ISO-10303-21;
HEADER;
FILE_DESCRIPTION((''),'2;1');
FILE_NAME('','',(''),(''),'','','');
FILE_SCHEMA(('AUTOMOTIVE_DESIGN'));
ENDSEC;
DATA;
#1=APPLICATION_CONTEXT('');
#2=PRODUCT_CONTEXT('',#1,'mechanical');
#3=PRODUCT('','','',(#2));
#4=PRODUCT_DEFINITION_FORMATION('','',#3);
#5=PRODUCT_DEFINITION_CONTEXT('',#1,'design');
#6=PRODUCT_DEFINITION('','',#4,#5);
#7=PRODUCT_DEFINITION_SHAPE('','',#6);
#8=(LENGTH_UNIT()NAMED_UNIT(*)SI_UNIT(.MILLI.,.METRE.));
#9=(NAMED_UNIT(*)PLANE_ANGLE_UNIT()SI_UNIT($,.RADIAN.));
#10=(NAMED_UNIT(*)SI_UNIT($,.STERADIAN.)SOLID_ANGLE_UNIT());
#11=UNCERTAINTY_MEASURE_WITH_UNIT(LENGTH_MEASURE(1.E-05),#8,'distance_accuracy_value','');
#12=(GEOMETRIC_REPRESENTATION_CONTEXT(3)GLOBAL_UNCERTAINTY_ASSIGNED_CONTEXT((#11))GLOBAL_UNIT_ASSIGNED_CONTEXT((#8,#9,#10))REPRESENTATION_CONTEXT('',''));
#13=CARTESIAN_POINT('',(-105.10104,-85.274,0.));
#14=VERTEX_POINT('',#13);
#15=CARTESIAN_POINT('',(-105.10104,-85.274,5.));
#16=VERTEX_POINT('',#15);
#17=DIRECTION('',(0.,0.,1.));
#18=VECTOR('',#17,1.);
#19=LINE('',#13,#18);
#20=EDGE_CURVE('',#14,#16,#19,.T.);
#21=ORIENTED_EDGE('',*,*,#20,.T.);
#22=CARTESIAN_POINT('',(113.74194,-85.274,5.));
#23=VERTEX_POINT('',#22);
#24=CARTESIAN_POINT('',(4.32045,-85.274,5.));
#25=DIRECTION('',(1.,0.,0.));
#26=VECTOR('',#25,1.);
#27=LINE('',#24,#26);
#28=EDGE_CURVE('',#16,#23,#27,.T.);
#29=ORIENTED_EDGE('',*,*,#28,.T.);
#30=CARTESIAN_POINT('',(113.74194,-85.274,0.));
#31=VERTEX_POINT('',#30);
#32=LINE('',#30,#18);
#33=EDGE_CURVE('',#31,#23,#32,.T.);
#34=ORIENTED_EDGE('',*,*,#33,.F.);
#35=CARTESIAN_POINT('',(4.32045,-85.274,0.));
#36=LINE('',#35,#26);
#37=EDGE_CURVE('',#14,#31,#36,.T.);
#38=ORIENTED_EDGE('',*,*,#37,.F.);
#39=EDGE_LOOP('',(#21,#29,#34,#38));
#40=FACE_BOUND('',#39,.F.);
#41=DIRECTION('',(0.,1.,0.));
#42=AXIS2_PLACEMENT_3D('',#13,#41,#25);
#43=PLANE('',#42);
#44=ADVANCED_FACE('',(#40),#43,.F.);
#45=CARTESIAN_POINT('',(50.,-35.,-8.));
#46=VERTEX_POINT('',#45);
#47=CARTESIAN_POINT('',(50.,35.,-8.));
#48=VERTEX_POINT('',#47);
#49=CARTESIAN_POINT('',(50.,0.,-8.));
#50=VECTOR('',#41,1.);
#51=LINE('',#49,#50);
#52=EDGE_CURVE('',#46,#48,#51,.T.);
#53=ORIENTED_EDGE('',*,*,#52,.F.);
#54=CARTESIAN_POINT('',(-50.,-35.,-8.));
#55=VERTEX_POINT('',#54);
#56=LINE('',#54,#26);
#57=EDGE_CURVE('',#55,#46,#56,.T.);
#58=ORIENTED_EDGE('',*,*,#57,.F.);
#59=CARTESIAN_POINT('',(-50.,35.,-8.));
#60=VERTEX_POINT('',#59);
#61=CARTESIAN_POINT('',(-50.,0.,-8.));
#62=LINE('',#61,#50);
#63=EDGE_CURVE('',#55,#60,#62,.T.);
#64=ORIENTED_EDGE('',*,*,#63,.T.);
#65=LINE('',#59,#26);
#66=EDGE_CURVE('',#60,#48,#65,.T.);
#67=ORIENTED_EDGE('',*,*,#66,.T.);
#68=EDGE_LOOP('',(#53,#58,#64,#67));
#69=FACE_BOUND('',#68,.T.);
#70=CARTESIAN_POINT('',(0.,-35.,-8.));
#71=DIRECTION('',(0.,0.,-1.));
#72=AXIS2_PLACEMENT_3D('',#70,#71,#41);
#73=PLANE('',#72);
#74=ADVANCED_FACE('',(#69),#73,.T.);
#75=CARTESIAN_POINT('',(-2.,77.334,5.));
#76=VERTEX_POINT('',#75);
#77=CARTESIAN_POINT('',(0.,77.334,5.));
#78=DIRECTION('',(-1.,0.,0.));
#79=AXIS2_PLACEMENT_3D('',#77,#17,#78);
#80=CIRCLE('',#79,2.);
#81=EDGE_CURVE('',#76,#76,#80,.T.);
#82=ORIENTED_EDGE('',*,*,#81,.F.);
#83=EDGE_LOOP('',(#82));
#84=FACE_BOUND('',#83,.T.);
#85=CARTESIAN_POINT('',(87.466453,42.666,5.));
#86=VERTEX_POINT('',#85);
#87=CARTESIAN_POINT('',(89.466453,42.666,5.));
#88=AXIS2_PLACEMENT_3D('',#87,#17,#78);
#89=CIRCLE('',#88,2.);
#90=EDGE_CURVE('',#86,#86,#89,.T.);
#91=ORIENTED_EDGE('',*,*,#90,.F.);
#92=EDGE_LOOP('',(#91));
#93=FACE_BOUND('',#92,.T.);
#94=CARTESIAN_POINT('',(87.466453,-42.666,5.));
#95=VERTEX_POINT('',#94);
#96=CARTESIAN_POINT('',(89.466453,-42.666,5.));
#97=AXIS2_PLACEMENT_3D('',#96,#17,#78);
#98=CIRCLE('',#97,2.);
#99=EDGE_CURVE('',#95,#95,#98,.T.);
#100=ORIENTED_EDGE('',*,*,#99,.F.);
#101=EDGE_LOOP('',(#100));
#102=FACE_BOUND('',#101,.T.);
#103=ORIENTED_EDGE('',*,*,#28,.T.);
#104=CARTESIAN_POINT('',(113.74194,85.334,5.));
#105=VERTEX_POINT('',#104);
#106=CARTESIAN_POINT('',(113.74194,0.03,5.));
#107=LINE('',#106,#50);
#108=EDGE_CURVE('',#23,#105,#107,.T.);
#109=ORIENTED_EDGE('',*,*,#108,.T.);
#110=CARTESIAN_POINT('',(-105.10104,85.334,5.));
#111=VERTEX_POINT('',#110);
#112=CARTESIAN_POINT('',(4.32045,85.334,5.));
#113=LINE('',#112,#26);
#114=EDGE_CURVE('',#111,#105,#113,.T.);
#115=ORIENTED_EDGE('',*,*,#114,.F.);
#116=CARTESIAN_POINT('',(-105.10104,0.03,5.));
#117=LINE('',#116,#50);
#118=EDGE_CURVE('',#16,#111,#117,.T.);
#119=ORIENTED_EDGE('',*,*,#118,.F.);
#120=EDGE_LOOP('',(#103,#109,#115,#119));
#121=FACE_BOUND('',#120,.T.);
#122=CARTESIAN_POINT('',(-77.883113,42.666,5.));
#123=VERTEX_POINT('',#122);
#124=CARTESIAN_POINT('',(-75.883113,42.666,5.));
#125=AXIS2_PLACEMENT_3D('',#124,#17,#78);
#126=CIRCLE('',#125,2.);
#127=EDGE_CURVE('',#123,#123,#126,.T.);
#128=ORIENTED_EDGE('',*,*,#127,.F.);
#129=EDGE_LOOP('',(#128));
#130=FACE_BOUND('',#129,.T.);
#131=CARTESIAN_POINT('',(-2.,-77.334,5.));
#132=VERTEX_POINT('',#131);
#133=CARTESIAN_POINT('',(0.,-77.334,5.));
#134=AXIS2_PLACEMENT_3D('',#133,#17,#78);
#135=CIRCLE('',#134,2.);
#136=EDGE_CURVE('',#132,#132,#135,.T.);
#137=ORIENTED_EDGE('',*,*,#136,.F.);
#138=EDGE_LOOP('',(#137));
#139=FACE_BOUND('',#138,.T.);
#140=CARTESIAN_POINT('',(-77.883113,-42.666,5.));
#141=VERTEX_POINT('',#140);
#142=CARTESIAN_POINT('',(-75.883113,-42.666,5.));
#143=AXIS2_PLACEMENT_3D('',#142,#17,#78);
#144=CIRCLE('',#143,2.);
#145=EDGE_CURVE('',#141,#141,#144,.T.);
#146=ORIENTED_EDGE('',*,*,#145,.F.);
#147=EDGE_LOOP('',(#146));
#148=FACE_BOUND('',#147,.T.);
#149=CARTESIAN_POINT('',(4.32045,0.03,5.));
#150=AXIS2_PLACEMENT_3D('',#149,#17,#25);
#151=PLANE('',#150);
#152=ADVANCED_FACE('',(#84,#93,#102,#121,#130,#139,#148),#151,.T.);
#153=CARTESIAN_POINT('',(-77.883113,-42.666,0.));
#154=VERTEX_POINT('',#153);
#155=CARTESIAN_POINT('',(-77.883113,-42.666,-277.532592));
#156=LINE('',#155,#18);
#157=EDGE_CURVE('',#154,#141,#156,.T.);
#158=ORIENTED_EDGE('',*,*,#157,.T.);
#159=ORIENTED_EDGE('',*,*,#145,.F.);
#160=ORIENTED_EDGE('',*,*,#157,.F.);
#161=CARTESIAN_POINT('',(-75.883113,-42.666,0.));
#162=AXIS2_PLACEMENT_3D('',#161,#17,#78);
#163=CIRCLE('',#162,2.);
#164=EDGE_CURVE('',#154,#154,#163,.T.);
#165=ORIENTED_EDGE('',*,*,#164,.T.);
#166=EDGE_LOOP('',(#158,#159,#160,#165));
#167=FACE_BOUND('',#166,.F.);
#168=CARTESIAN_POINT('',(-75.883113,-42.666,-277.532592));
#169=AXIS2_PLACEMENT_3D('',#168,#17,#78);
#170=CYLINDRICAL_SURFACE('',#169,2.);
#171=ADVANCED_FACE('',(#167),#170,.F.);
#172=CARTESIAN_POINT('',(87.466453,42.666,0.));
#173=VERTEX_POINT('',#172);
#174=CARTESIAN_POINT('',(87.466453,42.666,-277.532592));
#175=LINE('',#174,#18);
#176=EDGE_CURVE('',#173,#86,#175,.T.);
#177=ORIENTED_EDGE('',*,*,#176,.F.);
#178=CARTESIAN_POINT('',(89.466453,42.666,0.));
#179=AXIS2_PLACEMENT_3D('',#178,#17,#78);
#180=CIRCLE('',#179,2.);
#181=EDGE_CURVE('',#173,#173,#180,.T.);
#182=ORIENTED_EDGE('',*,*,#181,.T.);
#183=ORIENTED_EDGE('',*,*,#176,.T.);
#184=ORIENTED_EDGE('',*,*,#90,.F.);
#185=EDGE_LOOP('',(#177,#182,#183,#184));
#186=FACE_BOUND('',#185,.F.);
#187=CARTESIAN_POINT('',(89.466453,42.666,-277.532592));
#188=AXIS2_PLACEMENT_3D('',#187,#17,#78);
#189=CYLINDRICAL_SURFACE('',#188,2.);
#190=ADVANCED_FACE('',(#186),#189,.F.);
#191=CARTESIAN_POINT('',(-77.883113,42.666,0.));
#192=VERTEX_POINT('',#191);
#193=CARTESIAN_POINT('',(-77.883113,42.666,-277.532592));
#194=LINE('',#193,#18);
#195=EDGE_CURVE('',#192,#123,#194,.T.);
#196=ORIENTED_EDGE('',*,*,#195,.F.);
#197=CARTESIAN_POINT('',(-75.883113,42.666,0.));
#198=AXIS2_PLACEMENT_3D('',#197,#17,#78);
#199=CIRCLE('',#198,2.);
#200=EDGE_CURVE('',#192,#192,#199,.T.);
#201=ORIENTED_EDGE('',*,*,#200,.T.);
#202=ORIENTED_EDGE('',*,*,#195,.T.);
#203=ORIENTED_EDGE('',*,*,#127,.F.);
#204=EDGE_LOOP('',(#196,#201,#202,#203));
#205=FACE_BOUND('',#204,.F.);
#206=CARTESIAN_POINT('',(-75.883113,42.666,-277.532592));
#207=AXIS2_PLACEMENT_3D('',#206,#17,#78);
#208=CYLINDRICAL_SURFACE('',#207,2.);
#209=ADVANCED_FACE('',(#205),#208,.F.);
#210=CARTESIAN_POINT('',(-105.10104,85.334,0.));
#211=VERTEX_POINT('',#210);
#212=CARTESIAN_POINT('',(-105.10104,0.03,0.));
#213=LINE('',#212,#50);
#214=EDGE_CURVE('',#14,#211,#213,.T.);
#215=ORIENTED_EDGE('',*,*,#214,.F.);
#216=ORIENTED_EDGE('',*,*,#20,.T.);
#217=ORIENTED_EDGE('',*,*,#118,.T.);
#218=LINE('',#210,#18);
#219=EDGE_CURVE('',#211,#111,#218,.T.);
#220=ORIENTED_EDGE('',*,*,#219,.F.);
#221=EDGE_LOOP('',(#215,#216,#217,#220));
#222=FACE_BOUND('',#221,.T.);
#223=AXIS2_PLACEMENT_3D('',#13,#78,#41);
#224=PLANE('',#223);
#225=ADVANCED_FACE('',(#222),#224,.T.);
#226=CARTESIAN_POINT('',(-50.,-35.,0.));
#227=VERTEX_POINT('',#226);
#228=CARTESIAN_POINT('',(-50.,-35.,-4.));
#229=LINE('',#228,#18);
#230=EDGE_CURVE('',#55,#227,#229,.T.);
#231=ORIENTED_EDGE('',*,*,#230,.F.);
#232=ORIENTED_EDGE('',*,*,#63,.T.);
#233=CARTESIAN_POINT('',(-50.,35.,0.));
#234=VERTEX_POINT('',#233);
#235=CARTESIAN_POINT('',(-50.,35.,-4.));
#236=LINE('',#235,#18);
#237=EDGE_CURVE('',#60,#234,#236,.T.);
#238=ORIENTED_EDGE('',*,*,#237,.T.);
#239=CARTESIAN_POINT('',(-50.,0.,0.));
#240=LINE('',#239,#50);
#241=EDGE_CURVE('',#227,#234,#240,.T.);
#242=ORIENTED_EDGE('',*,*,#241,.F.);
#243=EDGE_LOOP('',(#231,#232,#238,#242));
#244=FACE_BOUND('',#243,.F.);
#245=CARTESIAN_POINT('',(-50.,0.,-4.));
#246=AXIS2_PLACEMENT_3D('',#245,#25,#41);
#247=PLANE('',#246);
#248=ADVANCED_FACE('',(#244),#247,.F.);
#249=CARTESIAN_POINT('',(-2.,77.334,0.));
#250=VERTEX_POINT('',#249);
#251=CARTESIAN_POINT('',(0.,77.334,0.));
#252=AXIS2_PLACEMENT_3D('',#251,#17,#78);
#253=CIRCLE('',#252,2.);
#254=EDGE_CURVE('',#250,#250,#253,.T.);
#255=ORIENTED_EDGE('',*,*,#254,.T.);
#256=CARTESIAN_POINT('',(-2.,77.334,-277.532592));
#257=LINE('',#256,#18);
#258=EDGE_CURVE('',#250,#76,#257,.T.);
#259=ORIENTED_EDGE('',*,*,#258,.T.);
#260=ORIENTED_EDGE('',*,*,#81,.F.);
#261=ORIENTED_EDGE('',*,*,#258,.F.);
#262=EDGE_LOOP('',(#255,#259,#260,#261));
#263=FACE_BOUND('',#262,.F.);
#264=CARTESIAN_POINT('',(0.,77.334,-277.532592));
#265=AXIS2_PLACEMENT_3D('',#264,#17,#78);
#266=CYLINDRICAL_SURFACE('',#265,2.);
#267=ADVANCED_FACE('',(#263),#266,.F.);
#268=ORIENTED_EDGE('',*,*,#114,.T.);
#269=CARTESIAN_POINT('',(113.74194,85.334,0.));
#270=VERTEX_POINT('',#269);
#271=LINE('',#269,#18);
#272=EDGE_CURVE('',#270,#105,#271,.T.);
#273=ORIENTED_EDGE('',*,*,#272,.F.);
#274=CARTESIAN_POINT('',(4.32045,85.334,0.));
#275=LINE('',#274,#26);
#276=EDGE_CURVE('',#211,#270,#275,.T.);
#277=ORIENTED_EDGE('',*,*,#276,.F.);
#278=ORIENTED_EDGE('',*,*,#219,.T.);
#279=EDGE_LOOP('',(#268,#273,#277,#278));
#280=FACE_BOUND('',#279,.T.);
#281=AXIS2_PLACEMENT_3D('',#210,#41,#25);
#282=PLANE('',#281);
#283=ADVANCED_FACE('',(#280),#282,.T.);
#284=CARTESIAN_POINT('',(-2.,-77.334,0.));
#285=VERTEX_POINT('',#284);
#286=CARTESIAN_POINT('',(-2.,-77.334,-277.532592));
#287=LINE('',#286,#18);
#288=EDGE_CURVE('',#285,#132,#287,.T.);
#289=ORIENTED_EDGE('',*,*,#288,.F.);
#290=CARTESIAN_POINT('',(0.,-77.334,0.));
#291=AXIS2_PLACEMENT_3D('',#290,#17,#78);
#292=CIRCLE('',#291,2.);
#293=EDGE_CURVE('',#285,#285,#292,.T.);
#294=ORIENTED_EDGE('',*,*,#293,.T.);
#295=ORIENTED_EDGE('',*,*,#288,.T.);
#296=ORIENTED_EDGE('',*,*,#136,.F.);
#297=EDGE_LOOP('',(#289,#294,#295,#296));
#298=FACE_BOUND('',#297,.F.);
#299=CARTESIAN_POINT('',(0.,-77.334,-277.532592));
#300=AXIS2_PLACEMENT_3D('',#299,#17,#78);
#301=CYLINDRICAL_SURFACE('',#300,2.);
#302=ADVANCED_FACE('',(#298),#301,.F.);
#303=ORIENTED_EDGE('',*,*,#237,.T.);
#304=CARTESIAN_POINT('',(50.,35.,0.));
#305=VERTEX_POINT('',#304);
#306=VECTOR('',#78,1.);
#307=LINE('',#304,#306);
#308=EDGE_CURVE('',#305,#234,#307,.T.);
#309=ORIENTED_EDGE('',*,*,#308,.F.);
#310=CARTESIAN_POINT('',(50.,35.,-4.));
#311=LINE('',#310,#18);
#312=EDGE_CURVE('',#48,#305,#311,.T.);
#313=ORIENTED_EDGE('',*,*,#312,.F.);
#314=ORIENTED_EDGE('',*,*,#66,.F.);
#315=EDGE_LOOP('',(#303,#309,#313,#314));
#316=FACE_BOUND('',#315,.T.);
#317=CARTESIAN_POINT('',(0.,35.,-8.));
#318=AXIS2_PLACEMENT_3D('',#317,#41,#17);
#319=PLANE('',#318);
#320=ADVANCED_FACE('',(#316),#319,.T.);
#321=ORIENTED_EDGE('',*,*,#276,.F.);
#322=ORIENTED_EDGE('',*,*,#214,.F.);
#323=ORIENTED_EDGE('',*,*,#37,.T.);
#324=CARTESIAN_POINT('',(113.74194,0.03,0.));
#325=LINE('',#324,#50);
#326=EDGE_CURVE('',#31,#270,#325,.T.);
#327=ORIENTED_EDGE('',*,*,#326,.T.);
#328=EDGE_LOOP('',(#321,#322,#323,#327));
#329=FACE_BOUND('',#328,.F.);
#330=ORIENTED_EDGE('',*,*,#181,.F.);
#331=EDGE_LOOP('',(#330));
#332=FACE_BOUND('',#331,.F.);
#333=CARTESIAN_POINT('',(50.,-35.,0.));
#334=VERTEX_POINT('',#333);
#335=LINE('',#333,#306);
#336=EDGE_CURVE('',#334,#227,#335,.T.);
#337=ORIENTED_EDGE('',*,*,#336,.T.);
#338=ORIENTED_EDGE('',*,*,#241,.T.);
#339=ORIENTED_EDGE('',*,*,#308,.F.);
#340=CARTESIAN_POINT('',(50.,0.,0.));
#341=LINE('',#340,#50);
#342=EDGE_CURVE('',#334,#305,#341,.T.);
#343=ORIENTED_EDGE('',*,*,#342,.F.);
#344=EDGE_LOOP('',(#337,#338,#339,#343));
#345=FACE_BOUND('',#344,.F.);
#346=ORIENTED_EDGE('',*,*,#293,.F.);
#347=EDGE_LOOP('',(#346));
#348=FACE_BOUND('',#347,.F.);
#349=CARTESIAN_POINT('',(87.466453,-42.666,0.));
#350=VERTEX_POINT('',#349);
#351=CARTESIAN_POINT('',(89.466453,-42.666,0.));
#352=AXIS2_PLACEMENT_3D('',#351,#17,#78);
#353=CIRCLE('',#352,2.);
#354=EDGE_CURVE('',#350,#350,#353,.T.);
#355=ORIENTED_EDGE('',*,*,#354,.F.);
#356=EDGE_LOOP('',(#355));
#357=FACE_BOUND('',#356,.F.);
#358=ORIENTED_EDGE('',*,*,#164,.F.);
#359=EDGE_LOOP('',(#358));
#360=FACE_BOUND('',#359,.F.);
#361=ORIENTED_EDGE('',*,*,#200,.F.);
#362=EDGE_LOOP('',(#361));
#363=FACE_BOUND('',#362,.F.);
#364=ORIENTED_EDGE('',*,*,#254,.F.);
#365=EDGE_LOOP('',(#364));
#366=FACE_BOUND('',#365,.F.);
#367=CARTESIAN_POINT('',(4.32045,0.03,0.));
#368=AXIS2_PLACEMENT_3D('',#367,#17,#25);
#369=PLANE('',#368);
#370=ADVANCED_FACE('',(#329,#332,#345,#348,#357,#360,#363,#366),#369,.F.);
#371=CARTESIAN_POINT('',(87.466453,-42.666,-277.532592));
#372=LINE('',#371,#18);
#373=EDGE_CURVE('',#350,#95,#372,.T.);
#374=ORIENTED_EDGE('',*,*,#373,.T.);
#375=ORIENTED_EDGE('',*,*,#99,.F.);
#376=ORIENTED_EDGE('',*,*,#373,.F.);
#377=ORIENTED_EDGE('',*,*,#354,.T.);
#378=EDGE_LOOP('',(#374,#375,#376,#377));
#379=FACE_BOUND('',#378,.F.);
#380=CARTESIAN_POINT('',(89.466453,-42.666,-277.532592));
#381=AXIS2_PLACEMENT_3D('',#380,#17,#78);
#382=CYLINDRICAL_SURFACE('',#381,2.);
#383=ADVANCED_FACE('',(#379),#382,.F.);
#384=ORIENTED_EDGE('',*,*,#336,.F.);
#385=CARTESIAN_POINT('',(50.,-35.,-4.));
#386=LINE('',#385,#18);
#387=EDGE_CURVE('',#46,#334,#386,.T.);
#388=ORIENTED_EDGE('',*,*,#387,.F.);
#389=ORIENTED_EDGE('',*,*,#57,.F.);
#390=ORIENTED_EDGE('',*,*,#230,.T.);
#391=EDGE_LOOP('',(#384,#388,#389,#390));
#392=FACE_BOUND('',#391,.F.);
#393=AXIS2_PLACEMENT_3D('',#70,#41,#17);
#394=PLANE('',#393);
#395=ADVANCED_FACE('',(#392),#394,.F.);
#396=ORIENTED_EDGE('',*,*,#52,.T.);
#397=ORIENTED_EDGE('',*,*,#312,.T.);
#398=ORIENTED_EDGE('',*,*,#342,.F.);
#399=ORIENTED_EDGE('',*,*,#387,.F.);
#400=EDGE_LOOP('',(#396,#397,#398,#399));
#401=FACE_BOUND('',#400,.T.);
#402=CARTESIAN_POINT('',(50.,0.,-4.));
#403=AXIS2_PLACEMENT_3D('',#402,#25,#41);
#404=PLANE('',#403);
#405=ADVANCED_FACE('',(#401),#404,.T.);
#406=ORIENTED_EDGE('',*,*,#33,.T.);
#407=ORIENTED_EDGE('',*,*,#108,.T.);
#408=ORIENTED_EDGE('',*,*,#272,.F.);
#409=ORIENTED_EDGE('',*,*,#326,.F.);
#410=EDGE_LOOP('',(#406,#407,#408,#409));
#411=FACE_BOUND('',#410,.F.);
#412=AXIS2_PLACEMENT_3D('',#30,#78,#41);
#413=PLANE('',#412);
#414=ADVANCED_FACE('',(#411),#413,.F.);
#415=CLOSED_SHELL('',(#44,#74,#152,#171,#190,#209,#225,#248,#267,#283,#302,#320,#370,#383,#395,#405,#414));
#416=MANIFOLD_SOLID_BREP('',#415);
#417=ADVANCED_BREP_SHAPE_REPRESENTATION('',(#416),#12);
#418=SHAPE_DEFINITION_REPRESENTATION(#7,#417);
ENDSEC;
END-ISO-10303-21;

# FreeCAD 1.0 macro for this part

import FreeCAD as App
import Part
import Sketcher
Q = App.Units.Quantity

doc = App.newDocument("Part")
body = doc.addObject("PartDesign::Body", "Body")

# Sketch on XY plane
sketch1 = body.newObject("Sketcher::SketchObject", "Sketch")
sketch1.AttachmentSupport = (doc.getObject("XY_Plane"), [""])
sketch1.MapMode = "FlatFace"
sketch1.addGeometry([
    Part.LineSegment(App.Vector(-105, 85, 0), App.Vector(-105, -85, 0)),
    Part.LineSegment(App.Vector(-105, -85, 0), App.Vector(114, -85, 0)),
    Part.LineSegment(App.Vector(114, -85, 0), App.Vector(114, 85, 0)),
    Part.LineSegment(App.Vector(114, 85, 0), App.Vector(-105, 85, 0)),
], False)
sketch1.addConstraint([
    Sketcher.Constraint("Coincident", 0, 2, 1, 1),
    Sketcher.Constraint("Coincident", 1, 2, 2, 1),
    Sketcher.Constraint("Coincident", 2, 2, 3, 1),
    Sketcher.Constraint("Coincident", 3, 2, 0, 1),
    Sketcher.Constraint("Vertical", 0),
    Sketcher.Constraint("Horizontal", 1),
    Sketcher.Constraint("Vertical", 2),
    Sketcher.Constraint("Horizontal", 3),
    Sketcher.Constraint("DistanceY", 0, 2, 0, 1, Q("170.608 mm")),
    Sketcher.Constraint("DistanceY", 0, 2, -1, 1, Q("85.274 mm")),
    Sketcher.Constraint("DistanceX", 1, 1, 1, 2, Q("218.84298 mm")),
    Sketcher.Constraint("DistanceX", 0, 2, -1, 1, Q("105.10104 mm")),
])
pad1 = body.newObject("PartDesign::Pad", "Pad")
pad1.Profile = sketch1
pad1.Length = 5

# Sketch on XY plane
sketch2 = body.newObject("Sketcher::SketchObject", "Sketch001")
sketch2.AttachmentSupport = (doc.getObject("XY_Plane"), [""])
sketch2.MapMode = "FlatFace"
sketch2.addGeometry([
    Part.Circle(App.Vector(-75.9, -42.7, 0), App.Vector(0, 0, 1), 2),  # 0
    Part.Circle(App.Vector(0, -77.3, 0), App.Vector(0, 0, 1), 2),  # 1
    Part.Circle(App.Vector(89.5, -42.7, 0), App.Vector(0, 0, 1), 2),  # 2
    Part.Circle(App.Vector(-75.9, 42.7, 0), App.Vector(0, 0, 1), 2),  # 3
    Part.Circle(App.Vector(0, 77.3, 0), App.Vector(0, 0, 1), 2),  # 4
    Part.Circle(App.Vector(89.5, 42.7, 0), App.Vector(0, 0, 1), 2),  # 5
], False)
sketch2.addConstraint([
    Sketcher.Constraint("Equal", 0, 1),
    Sketcher.Constraint("Equal", 1, 2),
    Sketcher.Constraint("Equal", 2, 3),
    Sketcher.Constraint("Equal", 3, 4),
    Sketcher.Constraint("Equal", 4, 5),
    Sketcher.Constraint("Symmetric", 1, 3, 4, 3, -1, 1),
    Sketcher.Constraint("Symmetric", 0, 3, 3, 3, -1),
    Sketcher.Constraint("Symmetric", 2, 3, 5, 3, -1),
    Sketcher.Constraint("PointOnObject", 1, 3, -2),
    Sketcher.Constraint("Horizontal", 0, 3, 2, 3),
    Sketcher.Constraint("Diameter", 0, Q("4 mm")),
    Sketcher.Constraint("DistanceY", 1, 3, 3, 3, Q("120 mm")),
    Sketcher.Constraint("DistanceY", 0, 3, -1, 1, Q("42.666 mm")),
    Sketcher.Constraint("DistanceX", 0, 3, -1, 1, Q("75.883113 mm")),
    Sketcher.Constraint("DistanceX", -1, 1, 2, 3, Q("89.466453 mm")),
])
doc.recompute()
hole = body.newObject("PartDesign::Hole", "Hole")
hole.Profile = sketch2
hole.ThreadType = "None"
hole.Diameter = 4
hole.DepthType = "ThroughAll"
hole.Reversed = True

# Sketch on YZ plane
sketch3 = body.newObject("Sketcher::SketchObject", "Sketch002")
sketch3.AttachmentSupport = (doc.getObject("YZ_Plane"), [""])
sketch3.MapMode = "FlatFace"
sketch3.addGeometry([
    Part.LineSegment(App.Vector(-35, 0, 0), App.Vector(-35, -8, 0)),
    Part.LineSegment(App.Vector(-35, -8, 0), App.Vector(35, -8, 0)),
    Part.LineSegment(App.Vector(35, -8, 0), App.Vector(35, 0, 0)),
    Part.LineSegment(App.Vector(35, 0, 0), App.Vector(-35, 0, 0)),
], False)
sketch3.addConstraint([
    Sketcher.Constraint("Coincident", 0, 2, 1, 1),
    Sketcher.Constraint("Coincident", 1, 2, 2, 1),
    Sketcher.Constraint("Coincident", 2, 2, 3, 1),
    Sketcher.Constraint("Coincident", 3, 2, 0, 1),
    Sketcher.Constraint("Vertical", 0),
    Sketcher.Constraint("Horizontal", 1),
    Sketcher.Constraint("Vertical", 2),
    Sketcher.Constraint("Horizontal", 3),
    Sketcher.Constraint("Symmetric", 2, 2, 3, 2, -1, 1),
    Sketcher.Constraint("DistanceX", 1, 1, 1, 2, Q("70 mm")),
    Sketcher.Constraint("DistanceY", 0, 2, 0, 1, Q("8 mm")),
])
pad2 = body.newObject("PartDesign::Pad", "Pad001")
pad2.Profile = sketch3
pad2.Length = 100
pad2.Midplane = True

doc.recompute()
